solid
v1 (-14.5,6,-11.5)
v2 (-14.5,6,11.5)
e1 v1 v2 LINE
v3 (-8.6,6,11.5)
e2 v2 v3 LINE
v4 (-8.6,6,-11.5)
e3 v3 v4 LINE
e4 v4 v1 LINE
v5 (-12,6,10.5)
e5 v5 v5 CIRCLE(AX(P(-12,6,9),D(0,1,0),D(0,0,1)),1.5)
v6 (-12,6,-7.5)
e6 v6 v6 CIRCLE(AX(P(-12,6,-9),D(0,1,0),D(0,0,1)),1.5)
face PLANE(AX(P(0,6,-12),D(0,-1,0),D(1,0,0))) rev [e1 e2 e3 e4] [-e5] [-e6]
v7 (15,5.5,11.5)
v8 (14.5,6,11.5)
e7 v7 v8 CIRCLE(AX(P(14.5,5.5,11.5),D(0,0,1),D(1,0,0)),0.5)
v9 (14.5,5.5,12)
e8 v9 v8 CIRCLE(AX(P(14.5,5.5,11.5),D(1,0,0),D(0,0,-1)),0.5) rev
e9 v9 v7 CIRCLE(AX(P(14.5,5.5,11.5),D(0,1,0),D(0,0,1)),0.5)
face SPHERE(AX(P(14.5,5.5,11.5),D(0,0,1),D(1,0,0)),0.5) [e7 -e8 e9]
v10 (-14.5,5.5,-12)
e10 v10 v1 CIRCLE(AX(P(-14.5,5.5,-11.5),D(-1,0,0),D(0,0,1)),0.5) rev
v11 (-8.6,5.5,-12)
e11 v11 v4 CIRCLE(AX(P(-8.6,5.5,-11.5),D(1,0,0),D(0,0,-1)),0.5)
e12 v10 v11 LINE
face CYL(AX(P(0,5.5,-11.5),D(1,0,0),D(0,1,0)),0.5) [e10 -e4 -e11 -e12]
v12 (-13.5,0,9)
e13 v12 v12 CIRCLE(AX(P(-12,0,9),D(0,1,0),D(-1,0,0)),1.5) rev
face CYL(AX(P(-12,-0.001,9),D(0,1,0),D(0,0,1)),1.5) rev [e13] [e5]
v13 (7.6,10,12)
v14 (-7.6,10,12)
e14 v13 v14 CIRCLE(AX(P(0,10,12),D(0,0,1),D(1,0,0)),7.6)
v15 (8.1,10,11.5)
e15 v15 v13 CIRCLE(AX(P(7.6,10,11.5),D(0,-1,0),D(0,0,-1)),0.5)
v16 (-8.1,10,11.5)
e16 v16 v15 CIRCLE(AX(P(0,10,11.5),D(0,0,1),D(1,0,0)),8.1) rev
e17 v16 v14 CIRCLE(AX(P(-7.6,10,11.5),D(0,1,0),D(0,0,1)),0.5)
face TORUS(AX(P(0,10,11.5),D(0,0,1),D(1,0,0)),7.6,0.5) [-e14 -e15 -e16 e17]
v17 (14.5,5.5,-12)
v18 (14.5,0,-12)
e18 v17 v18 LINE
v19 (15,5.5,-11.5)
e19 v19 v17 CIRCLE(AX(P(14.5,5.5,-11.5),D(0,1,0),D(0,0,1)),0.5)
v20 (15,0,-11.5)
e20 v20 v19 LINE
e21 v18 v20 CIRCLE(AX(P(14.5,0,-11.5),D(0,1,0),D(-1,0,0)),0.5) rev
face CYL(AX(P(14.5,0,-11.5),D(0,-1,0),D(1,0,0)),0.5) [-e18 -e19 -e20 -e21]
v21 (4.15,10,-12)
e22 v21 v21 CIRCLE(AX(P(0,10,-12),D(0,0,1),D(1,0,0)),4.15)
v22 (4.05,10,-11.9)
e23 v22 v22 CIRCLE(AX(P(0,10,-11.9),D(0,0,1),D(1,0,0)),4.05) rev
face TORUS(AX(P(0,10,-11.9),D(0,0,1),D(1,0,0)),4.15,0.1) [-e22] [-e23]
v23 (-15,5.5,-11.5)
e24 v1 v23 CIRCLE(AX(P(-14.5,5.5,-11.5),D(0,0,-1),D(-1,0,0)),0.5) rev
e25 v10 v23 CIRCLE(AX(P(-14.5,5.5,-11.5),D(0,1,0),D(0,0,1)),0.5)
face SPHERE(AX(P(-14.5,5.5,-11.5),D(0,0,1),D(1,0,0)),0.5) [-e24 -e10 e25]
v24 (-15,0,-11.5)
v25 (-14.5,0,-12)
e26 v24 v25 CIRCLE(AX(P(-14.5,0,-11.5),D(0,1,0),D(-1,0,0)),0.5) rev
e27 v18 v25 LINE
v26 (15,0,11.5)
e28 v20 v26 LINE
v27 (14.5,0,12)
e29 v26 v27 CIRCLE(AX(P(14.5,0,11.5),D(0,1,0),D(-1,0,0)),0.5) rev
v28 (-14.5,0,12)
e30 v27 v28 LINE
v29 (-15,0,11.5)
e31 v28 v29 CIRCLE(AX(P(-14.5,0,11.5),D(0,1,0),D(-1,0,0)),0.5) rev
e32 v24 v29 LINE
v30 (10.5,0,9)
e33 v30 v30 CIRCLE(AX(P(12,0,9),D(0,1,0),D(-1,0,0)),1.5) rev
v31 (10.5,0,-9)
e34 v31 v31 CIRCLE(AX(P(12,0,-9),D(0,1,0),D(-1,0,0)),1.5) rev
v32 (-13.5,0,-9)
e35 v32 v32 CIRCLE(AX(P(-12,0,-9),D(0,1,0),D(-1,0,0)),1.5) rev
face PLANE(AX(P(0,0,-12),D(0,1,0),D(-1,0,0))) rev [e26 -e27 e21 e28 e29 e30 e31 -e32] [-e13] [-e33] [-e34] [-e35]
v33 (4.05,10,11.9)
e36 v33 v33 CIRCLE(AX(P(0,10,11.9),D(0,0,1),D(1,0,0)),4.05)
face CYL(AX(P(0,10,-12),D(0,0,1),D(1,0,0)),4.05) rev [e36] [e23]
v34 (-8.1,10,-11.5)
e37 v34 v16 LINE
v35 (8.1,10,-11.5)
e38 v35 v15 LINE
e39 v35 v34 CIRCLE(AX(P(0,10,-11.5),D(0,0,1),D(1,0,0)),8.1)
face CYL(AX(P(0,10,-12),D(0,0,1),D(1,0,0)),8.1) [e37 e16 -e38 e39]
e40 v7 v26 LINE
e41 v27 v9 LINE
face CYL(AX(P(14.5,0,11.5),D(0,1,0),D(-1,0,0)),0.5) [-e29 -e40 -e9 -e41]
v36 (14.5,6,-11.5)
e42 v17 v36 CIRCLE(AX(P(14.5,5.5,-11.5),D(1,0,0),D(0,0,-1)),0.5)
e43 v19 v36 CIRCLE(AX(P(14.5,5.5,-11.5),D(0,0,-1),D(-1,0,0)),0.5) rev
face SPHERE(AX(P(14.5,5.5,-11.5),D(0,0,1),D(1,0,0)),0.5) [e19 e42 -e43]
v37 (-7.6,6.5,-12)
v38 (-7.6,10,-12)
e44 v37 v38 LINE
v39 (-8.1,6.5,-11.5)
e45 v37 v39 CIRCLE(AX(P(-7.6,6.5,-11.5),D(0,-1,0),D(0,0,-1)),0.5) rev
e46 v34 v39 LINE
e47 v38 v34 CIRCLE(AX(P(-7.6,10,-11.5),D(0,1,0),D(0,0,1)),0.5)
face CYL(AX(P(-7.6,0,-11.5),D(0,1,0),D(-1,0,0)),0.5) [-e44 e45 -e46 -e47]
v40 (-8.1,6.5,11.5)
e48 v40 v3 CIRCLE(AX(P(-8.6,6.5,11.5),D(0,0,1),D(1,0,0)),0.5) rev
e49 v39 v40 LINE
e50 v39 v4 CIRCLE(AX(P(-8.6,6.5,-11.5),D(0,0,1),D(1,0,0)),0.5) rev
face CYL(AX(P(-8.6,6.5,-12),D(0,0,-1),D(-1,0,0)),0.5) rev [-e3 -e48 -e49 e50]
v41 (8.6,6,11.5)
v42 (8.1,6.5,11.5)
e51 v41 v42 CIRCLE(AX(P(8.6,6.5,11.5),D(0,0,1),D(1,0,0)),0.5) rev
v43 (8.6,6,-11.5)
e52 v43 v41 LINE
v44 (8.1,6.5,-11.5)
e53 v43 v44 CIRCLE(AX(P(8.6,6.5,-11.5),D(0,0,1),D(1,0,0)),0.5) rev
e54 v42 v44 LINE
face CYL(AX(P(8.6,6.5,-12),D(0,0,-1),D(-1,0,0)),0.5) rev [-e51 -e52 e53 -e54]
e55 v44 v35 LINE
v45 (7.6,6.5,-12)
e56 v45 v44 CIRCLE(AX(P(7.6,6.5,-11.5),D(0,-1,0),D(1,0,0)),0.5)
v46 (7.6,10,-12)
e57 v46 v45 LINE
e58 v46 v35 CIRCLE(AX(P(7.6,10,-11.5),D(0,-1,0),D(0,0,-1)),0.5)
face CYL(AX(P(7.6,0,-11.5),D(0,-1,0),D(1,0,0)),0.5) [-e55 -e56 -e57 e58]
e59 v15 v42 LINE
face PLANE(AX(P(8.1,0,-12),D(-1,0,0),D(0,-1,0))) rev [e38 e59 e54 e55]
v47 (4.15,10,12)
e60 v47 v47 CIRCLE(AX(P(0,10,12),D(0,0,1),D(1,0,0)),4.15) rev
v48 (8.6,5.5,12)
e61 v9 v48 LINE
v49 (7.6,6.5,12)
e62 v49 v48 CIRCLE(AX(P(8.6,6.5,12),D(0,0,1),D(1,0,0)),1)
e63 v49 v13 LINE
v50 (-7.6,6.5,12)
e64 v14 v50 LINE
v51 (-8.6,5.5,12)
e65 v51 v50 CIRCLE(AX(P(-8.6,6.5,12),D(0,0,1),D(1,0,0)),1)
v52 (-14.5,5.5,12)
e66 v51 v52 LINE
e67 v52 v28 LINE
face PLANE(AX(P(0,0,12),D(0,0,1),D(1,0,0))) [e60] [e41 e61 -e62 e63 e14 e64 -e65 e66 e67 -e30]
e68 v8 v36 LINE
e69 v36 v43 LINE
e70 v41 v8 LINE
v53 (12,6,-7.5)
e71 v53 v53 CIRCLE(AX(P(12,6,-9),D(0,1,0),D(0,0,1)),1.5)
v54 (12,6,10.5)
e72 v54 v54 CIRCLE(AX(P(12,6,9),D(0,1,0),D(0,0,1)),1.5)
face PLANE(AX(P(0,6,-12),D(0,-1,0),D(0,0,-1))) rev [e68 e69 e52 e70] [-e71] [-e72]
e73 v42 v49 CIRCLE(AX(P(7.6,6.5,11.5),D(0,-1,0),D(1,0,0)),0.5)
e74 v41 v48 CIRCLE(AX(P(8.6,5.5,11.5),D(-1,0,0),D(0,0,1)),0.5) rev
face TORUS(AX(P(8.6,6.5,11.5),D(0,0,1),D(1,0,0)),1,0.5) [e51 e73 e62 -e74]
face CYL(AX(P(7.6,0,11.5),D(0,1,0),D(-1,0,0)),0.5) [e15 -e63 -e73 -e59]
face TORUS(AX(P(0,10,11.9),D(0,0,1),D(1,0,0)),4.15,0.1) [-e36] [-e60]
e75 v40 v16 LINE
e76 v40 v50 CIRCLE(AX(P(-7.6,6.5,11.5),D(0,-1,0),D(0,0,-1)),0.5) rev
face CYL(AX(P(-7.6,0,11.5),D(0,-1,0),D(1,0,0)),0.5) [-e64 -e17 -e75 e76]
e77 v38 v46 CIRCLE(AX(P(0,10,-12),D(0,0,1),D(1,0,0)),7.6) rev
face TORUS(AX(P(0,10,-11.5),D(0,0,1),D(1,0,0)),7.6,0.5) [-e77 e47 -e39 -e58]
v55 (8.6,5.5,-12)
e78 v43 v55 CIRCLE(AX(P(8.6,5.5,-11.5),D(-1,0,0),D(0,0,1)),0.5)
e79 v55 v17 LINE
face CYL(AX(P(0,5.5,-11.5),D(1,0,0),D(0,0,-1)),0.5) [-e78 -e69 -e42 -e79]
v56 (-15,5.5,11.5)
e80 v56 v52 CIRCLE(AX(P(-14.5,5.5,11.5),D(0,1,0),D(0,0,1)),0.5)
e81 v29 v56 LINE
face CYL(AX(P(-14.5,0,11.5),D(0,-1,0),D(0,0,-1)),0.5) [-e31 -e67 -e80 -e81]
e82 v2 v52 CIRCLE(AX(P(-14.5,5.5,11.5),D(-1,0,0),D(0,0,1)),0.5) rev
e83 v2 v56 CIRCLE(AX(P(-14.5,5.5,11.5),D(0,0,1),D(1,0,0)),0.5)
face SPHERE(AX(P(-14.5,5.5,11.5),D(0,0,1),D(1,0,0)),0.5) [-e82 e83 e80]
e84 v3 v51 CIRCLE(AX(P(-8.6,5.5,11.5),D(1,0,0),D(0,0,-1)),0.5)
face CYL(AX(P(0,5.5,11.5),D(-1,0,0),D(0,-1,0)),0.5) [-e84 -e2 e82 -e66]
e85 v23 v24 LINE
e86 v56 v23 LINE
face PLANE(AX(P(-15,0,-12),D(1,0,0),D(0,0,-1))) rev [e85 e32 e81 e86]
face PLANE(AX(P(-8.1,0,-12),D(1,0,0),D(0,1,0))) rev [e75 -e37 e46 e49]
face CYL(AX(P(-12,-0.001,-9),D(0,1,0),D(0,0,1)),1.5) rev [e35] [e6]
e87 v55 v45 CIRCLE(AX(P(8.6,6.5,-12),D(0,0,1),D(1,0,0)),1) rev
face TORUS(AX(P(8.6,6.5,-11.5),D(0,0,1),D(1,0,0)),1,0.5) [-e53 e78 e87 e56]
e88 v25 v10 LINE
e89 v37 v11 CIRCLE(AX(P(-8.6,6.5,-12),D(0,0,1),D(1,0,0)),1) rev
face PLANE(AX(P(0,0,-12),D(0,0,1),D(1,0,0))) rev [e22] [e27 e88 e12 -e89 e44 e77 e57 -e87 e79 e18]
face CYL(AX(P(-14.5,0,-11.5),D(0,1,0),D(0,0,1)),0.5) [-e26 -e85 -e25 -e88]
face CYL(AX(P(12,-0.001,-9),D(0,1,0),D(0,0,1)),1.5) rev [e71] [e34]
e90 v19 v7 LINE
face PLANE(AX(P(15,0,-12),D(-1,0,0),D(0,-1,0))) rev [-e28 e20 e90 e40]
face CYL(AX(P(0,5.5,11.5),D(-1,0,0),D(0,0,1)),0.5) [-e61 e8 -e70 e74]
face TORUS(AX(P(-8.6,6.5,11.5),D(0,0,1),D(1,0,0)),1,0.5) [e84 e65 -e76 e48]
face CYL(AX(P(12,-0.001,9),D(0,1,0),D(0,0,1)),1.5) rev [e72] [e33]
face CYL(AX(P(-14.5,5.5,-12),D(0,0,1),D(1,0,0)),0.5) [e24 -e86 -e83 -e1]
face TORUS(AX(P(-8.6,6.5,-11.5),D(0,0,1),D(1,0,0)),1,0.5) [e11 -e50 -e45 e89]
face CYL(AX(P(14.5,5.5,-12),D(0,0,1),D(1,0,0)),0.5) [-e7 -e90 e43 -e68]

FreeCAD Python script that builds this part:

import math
import FreeCAD as App
import Part
import Sketcher
from FreeCAD import Vector


def edges_at(feature, points):
    """Names of the edges that pass closest to the given points."""
    edges = feature.Shape.Edges
    near = lambda p: min(range(len(edges)), key=lambda i: edges[i].distToShape(Part.Vertex(*p))[0])
    return sorted({f"Edge{near(p) + 1}" for p in points})

doc = App.newDocument("Part")
params = doc.addObject("Spreadsheet::Sheet", "Params")
for row, (alias, value) in enumerate([
    ("sketch1_diameter", "8.1 mm"),
    ("sketch1_radius", "8.1 mm"),
    ("sketch1_width", "30 mm"),
    ("sketch1_height", "6 mm"),
    ("sketch1_height2", "4 mm"),
    ("pad1_length", "24 mm"),
    ("sketch2_diameter", "3 mm"),
    ("sketch3_diameter", "3 mm"),
    ("sketch4_diameter", "3 mm"),
    ("sketch5_diameter", "3 mm"),
    ("fillet_radius", "0.5 mm"),
    ("fillet2_radius", "0.1 mm"),
], start=1):
    params.set(f"A{row}", alias)
    params.set(f"B{row}", "=" + value)
    params.setAlias(f"B{row}", alias)

body = doc.addObject("PartDesign::Body", "Body")

sketch1 = body.newObject("Sketcher::SketchObject", "Sketch")
sketch1.AttachmentSupport = (doc.getObject("XY_Plane"), [""])
sketch1.MapMode = "FlatFace"
sketch1.addGeometry([
    Part.LineSegment(Vector(-15, 0, 0), Vector(15, 0, 0)),
    Part.LineSegment(Vector(15, 0, 0), Vector(15, 6, 0)),
    Part.LineSegment(Vector(15, 6, 0), Vector(8.1, 6, 0)),
    Part.LineSegment(Vector(8.1, 6, 0), Vector(8.1, 10, 0)),
    Part.ArcOfCircle(Part.Circle(Vector(0, 10, 0), Vector(0, 0, 1), 8.1), math.radians(0), math.radians(180)),
    Part.LineSegment(Vector(-8.1, 10, 0), Vector(-8.1, 6, 0)),
    Part.LineSegment(Vector(-8.1, 6, 0), Vector(-15, 6, 0)),
    Part.LineSegment(Vector(-15, 6, 0), Vector(-15, 0, 0)),
    Part.Circle(Vector(0, 10, 0), Vector(0, 0, 1), 4.05),
], False)
sketch1.addConstraint([
    Sketcher.Constraint("Coincident", 0, 2, 1, 1),
    Sketcher.Constraint("Coincident", 1, 2, 2, 1),
    Sketcher.Constraint("Coincident", 2, 2, 3, 1),
    Sketcher.Constraint("Tangent", 3, 2, 4, 1),
    Sketcher.Constraint("Tangent", 4, 2, 5, 1),
    Sketcher.Constraint("Coincident", 5, 2, 6, 1),
    Sketcher.Constraint("Coincident", 6, 2, 7, 1),
    Sketcher.Constraint("Coincident", 7, 2, 0, 1),
    Sketcher.Constraint("Horizontal", 0),
    Sketcher.Constraint("Vertical", 1),
    Sketcher.Constraint("Horizontal", 2),
    Sketcher.Constraint("Vertical", 3),
    Sketcher.Constraint("Vertical", 5),
    Sketcher.Constraint("Horizontal", 6),
    Sketcher.Constraint("Vertical", 7),
    Sketcher.Constraint("Coincident", 8, 3, 4, 3),
    Sketcher.Constraint("Symmetric", 0, 2, 7, 2, -1, 1),
    Sketcher.Constraint("Symmetric", 2, 2, 5, 2, -2),
    Sketcher.Constraint("Diameter", 8, 8.1),
    Sketcher.Constraint("Radius", 4, 8.1),
    Sketcher.Constraint("DistanceX", 0, 1, 0, 2, 30.0),
    Sketcher.Constraint("DistanceY", 1, 1, 1, 2, 6.0),
    Sketcher.Constraint("DistanceY", 3, 1, 3, 2, 4.0),
])
sketch1.setExpression("Constraints[18]", "Params.sketch1_diameter")
sketch1.setExpression("Constraints[19]", "Params.sketch1_radius")
sketch1.setExpression("Constraints[20]", "Params.sketch1_width")
sketch1.setExpression("Constraints[21]", "Params.sketch1_height")
sketch1.setExpression("Constraints[22]", "Params.sketch1_height2")
pad1 = body.newObject("PartDesign::Pad", "Pad")
pad1.Profile = sketch1
pad1.setExpression("Length", "Params.pad1_length")
pad1.Midplane = True

sketch2 = body.newObject("Sketcher::SketchObject", "Sketch001")
sketch2.AttachmentSupport = (doc.getObject("XZ_Plane"), [""])
sketch2.MapMode = "FlatFace"
sketch2.AttachmentOffset = App.Placement(Vector(0, 0, -6), App.Rotation())
sketch2.addGeometry(Part.Circle(Vector(-12, -9, 0), Vector(0, 0, 1), 1.5), False)
sketch2.addConstraint([
    Sketcher.Constraint("Diameter", 0, 3.0),
    Sketcher.Constraint("DistanceX", 0, 3, -1, 1, 12.0),
    Sketcher.Constraint("DistanceY", 0, 3, -1, 1, 9.0),
])
sketch2.setExpression("Constraints[0]", "Params.sketch2_diameter")
pocket1 = body.newObject("PartDesign::Pocket", "Pocket")
pocket1.Profile = sketch2
pocket1.Type = "UpToFirst"
pocket1.Reversed = True

sketch3 = body.newObject("Sketcher::SketchObject", "Sketch002")
sketch3.AttachmentSupport = (doc.getObject("XZ_Plane"), [""])
sketch3.MapMode = "FlatFace"
sketch3.AttachmentOffset = App.Placement(Vector(0, 0, -6), App.Rotation())
sketch3.addGeometry(Part.Circle(Vector(12, -9, 0), Vector(0, 0, 1), 1.5), False)
sketch3.addConstraint([
    Sketcher.Constraint("Diameter", 0, 3.0),
    Sketcher.Constraint("DistanceX", -1, 1, 0, 3, 12.0),
    Sketcher.Constraint("DistanceY", 0, 3, -1, 1, 9.0),
])
sketch3.setExpression("Constraints[0]", "Params.sketch3_diameter")
pocket2 = body.newObject("PartDesign::Pocket", "Pocket001")
pocket2.Profile = sketch3
pocket2.Type = "UpToFirst"
pocket2.Reversed = True

sketch4 = body.newObject("Sketcher::SketchObject", "Sketch003")
sketch4.AttachmentSupport = (doc.getObject("XZ_Plane"), [""])
sketch4.MapMode = "FlatFace"
sketch4.AttachmentOffset = App.Placement(Vector(0, 0, -6), App.Rotation())
sketch4.addGeometry(Part.Circle(Vector(-12, 9, 0), Vector(0, 0, 1), 1.5), False)
sketch4.addConstraint([
    Sketcher.Constraint("Diameter", 0, 3.0),
    Sketcher.Constraint("DistanceX", 0, 3, -1, 1, 12.0),
    Sketcher.Constraint("DistanceY", -1, 1, 0, 3, 9.0),
])
sketch4.setExpression("Constraints[0]", "Params.sketch4_diameter")
pocket3 = body.newObject("PartDesign::Pocket", "Pocket002")
pocket3.Profile = sketch4
pocket3.Type = "UpToFirst"
pocket3.Reversed = True

sketch5 = body.newObject("Sketcher::SketchObject", "Sketch004")
sketch5.AttachmentSupport = (doc.getObject("XZ_Plane"), [""])
sketch5.MapMode = "FlatFace"
sketch5.AttachmentOffset = App.Placement(Vector(0, 0, -6), App.Rotation())
sketch5.addGeometry(Part.Circle(Vector(12, 9, 0), Vector(0, 0, 1), 1.5), False)
sketch5.addConstraint([
    Sketcher.Constraint("Diameter", 0, 3.0),
    Sketcher.Constraint("DistanceX", -1, 1, 0, 3, 12.0),
    Sketcher.Constraint("DistanceY", -1, 1, 0, 3, 9.0),
])
sketch5.setExpression("Constraints[0]", "Params.sketch5_diameter")
pocket4 = body.newObject("PartDesign::Pocket", "Pocket003")
pocket4.Profile = sketch5
pocket4.Type = "UpToFirst"
pocket4.Reversed = True
doc.recompute()

fillet = body.newObject("PartDesign::Fillet", "Fillet")
fillet.Base = (pocket4, edges_at(pocket4, [
    (8.1, 8, -12),
    (11.55, 6, 12),
    (15, 3, 12),
    (-15, 3, 12),
    (-11.55, 6, 12),
    (-8.1, 8, 12),
    (0, 18.1, 12),
    (8.1, 8, 12),
    (0, 18.1, -12),
    (8.1, 6, 0),
    (15, 6, 0),
    (-15, 6, 0),
    (-8.1, 6, 0),
    (-8.1, 8, -12),
    (-11.55, 6, -12),
    (-15, 3, -12),
    (15, 3, -12),
    (11.55, 6, -12),
]))
fillet.setExpression("Radius", "Params.fillet_radius")
doc.recompute()

fillet2 = body.newObject("PartDesign::Fillet", "Fillet001")
fillet2.Base = (fillet, edges_at(fillet, [(-4.05, 10, 12), (-4.05, 10, -12)]))
fillet2.setExpression("Radius", "Params.fillet2_radius")

doc.recompute()
